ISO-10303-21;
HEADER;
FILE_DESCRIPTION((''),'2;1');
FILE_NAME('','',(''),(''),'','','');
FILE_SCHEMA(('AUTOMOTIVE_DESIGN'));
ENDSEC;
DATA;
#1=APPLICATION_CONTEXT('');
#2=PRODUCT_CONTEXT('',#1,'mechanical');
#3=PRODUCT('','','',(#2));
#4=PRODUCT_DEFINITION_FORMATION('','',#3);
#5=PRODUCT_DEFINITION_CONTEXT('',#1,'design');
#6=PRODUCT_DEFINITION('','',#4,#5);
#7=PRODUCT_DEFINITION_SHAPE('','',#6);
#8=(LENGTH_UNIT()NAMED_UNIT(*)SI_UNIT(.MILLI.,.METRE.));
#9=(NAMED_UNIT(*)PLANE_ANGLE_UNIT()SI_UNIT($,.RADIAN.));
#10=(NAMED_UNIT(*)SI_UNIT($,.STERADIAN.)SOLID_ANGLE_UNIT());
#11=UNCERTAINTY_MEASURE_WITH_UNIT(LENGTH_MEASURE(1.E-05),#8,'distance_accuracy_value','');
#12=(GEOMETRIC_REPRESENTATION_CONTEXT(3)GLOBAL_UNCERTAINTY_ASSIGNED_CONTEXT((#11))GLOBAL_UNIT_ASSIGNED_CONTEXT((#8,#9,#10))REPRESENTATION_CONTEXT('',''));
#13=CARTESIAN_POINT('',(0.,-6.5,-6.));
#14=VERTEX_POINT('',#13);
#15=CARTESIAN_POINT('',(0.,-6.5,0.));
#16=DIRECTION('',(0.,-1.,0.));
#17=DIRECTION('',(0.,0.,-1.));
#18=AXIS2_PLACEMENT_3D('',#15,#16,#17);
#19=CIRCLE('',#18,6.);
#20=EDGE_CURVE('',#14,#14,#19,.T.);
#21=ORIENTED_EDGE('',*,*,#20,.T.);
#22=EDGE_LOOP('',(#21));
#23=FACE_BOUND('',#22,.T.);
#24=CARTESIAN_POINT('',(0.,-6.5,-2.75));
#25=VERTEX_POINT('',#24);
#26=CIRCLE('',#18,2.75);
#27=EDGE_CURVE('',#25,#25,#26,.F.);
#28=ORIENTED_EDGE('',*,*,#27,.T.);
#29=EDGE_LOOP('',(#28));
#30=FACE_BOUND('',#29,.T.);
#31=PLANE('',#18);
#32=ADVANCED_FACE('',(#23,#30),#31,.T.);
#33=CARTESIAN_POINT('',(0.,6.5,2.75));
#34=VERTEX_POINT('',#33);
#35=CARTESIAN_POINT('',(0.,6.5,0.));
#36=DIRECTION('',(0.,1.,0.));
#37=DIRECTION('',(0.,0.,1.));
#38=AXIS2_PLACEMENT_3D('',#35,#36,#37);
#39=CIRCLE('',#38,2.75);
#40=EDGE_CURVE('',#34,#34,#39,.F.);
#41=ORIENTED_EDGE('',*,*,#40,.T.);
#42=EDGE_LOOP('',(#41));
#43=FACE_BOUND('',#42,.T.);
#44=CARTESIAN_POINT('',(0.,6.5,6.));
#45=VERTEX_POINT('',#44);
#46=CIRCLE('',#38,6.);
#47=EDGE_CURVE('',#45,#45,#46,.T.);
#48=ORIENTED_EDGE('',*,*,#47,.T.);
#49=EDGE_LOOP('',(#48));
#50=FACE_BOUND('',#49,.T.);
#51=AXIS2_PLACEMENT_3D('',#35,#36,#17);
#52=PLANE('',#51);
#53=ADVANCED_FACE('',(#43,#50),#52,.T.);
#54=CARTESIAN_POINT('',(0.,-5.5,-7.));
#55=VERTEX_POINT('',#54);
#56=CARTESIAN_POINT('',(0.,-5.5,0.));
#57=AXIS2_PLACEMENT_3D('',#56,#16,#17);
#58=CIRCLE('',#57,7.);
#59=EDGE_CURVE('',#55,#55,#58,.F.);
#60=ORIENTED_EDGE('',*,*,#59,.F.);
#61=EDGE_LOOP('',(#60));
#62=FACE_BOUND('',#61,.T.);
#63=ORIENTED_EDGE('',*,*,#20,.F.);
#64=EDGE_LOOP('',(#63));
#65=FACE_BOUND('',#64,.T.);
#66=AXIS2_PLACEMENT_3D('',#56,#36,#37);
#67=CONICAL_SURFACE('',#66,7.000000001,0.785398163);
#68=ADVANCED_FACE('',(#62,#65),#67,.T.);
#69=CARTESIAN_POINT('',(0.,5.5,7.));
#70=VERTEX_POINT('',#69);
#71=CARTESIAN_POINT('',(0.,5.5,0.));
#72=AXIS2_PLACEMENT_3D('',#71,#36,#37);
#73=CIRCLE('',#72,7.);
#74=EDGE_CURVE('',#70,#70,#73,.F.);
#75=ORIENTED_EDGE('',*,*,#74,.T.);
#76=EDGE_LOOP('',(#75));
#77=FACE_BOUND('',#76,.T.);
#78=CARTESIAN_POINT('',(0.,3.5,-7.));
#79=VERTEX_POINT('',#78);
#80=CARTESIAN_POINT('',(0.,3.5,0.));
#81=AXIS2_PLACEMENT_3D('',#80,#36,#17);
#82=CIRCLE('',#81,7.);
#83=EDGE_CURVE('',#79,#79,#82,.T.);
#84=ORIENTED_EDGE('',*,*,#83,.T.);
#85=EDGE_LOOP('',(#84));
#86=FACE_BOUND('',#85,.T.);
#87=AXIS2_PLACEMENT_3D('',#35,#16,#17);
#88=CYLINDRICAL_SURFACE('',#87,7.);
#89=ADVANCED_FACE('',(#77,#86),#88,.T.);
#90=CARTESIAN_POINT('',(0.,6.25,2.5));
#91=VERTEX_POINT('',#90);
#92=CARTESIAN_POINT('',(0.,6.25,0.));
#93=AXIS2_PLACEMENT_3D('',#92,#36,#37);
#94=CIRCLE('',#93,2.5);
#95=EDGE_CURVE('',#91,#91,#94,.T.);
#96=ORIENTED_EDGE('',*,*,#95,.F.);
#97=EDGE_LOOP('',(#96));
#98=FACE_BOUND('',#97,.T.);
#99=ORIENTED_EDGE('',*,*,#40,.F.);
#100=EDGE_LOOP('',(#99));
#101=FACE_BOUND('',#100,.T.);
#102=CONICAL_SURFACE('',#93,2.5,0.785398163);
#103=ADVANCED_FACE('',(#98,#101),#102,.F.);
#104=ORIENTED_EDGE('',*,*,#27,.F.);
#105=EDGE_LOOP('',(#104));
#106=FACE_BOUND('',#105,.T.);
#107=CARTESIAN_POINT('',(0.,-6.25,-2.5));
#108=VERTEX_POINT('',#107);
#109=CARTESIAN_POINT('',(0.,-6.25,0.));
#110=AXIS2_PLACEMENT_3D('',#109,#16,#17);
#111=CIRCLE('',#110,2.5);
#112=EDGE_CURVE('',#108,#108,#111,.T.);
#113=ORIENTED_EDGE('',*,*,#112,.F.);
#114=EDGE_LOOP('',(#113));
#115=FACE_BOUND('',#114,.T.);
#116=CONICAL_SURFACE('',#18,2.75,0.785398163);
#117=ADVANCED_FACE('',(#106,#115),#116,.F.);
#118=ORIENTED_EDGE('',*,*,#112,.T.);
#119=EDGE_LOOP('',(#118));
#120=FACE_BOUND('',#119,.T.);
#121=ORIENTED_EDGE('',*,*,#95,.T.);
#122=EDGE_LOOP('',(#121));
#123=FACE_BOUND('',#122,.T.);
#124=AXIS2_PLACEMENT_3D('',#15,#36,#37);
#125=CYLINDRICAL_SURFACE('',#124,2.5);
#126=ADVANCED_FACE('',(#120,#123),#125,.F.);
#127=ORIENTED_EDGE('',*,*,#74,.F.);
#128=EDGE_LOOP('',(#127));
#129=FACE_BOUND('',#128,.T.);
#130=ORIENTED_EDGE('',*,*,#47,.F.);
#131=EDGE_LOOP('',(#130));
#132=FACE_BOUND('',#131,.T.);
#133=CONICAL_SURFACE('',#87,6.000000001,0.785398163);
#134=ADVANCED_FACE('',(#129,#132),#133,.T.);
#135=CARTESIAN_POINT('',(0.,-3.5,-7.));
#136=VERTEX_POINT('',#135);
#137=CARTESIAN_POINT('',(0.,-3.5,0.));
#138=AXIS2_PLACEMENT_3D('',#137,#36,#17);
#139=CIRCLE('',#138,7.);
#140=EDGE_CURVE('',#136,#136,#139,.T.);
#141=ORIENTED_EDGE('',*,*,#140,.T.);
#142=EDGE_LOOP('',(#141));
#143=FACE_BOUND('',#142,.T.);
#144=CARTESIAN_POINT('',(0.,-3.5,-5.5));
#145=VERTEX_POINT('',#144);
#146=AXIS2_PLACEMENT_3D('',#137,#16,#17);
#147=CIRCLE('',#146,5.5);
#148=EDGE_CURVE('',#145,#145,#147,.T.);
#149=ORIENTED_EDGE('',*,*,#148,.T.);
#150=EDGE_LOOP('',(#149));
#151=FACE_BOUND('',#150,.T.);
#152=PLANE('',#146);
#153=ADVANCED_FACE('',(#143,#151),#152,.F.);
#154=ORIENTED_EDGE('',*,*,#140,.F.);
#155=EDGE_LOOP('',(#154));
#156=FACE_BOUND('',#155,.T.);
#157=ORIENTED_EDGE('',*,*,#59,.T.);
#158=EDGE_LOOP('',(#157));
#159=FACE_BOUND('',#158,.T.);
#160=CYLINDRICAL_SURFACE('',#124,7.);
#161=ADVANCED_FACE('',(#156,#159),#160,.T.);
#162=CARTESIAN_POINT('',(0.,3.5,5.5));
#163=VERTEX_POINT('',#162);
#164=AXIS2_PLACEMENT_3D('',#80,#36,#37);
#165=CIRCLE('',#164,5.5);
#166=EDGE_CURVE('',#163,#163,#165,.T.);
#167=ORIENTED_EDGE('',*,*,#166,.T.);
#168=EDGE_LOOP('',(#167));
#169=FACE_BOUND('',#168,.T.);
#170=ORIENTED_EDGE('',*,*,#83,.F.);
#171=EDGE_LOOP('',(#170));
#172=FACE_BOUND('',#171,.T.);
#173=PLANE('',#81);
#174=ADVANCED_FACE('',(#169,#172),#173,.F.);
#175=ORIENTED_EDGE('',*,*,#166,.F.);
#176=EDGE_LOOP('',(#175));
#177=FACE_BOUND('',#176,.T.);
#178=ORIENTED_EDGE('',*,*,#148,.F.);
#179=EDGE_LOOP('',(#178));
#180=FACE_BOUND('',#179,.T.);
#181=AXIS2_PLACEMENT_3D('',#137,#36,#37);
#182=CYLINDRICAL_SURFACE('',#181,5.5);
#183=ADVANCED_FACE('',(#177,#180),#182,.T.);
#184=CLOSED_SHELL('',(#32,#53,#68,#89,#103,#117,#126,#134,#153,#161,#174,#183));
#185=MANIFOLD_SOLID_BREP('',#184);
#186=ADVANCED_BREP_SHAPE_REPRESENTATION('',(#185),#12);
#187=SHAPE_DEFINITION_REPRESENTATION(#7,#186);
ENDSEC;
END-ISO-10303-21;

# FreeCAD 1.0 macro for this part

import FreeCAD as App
import Part
import Sketcher


def edges_at(feature, points):
    """Names of the edges that pass closest to the given points."""
    edges = feature.Shape.Edges
    near = lambda p: min(range(len(edges)), key=lambda i: edges[i].distToShape(Part.Vertex(*p))[0])
    return sorted({f"Edge{near(p) + 1}" for p in points})

doc = App.newDocument("Part")
params = doc.addObject("Spreadsheet::Sheet", "Params")
for row, (alias, value) in enumerate([
    ("sketch1_diameter", "11 mm"),
    ("pad1_length", "7 mm"),
    ("sketch2_diameter", "14 mm"),
    ("pad2_length", "3 mm"),
    ("chamfer_size", "1 mm"),
    ("chamfer2_size", "1 mm"),
    ("sketch3_diameter", "5 mm"),
    ("chamfer3_size", "0.25 mm"),
], start=1):
    params.set(f"A{row}", alias)
    params.set(f"B{row}", "=" + value)
    params.setAlias(f"B{row}", alias)

body = doc.addObject("PartDesign::Body", "Body")

# Sketch on XZ plane
sketch1 = body.newObject("Sketcher::SketchObject", "Sketch")
sketch1.AttachmentSupport = (doc.getObject("XZ_Plane"), [""])
sketch1.MapMode = "FlatFace"
sketch1.addGeometry(Part.Circle(App.Vector(0, 0, 0), App.Vector(0, 0, 1), 6), False)
sketch1.addConstraint(Sketcher.Constraint("Coincident", 0, 3, -1, 1))
sketch1.addConstraint(Sketcher.Constraint("Diameter", 0, 11.0))
sketch1.setExpression("Constraints[1]", "Params.sketch1_diameter")
pad1 = body.newObject("PartDesign::Pad", "Pad")
pad1.Profile = sketch1
pad1.setExpression("Length", "Params.pad1_length")
pad1.Midplane = True

# Sketch on XZ plane
sketch2 = body.newObject("Sketcher::SketchObject", "Sketch001")
sketch2.AttachmentSupport = (doc.getObject("XZ_Plane"), [""])
sketch2.MapMode = "FlatFace"
sketch2.AttachmentOffset = App.Placement(App.Vector(0, 0, 3.5), App.Rotation())
sketch2.addGeometry(Part.Circle(App.Vector(0, 0, 0), App.Vector(0, 0, 1), 7), False)
sketch2.addConstraint(Sketcher.Constraint("Coincident", 0, 3, -1, 1))
sketch2.addConstraint(Sketcher.Constraint("Diameter", 0, 14.0))
sketch2.setExpression("Constraints[1]", "Params.sketch2_diameter")
pad2 = body.newObject("PartDesign::Pad", "Pad001")
pad2.Profile = sketch2
pad2.setExpression("Length", "Params.pad2_length")
doc.recompute()

chamfer = body.newObject("PartDesign::Chamfer", "Chamfer")
chamfer.Base = (pad2, edges_at(pad2, [(0, -6.5, 7)]))
chamfer.setExpression("Size", "Params.chamfer_size")
doc.recompute()

mirrored = body.newObject("PartDesign::Mirrored", "Mirrored")
mirrored.Originals = [pad2]
mirrored.MirrorPlane = (doc.getObject("XZ_Plane"), [""])
body.Tip = mirrored
doc.recompute()

chamfer2 = body.newObject("PartDesign::Chamfer", "Chamfer001")
chamfer2.Base = (mirrored, edges_at(mirrored, [(0, 6.5, 7)]))
chamfer2.setExpression("Size", "Params.chamfer2_size")

# Sketch on XZ plane
sketch3 = body.newObject("Sketcher::SketchObject", "Sketch002")
sketch3.AttachmentSupport = (doc.getObject("XZ_Plane"), [""])
sketch3.MapMode = "FlatFace"
sketch3.addGeometry(Part.Circle(App.Vector(0, 0, 0), App.Vector(0, 0, 1), 2.5), False)
sketch3.addConstraint(Sketcher.Constraint("Coincident", 0, 3, -1, 1))
sketch3.addConstraint(Sketcher.Constraint("Diameter", 0, 5.0))
sketch3.setExpression("Constraints[1]", "Params.sketch3_diameter")
pocket1 = body.newObject("PartDesign::Pocket", "Pocket")
pocket1.Profile = sketch3
pocket1.Type = "ThroughAll"
pocket1.Midplane = True
doc.recompute()

chamfer3 = body.newObject("PartDesign::Chamfer", "Chamfer002")
chamfer3.Base = (pocket1, edges_at(pocket1, [(0, -6.5, 2.5), (0, 6.5, 2.5)]))
chamfer3.setExpression("Size", "Params.chamfer3_size")

doc.recompute()
